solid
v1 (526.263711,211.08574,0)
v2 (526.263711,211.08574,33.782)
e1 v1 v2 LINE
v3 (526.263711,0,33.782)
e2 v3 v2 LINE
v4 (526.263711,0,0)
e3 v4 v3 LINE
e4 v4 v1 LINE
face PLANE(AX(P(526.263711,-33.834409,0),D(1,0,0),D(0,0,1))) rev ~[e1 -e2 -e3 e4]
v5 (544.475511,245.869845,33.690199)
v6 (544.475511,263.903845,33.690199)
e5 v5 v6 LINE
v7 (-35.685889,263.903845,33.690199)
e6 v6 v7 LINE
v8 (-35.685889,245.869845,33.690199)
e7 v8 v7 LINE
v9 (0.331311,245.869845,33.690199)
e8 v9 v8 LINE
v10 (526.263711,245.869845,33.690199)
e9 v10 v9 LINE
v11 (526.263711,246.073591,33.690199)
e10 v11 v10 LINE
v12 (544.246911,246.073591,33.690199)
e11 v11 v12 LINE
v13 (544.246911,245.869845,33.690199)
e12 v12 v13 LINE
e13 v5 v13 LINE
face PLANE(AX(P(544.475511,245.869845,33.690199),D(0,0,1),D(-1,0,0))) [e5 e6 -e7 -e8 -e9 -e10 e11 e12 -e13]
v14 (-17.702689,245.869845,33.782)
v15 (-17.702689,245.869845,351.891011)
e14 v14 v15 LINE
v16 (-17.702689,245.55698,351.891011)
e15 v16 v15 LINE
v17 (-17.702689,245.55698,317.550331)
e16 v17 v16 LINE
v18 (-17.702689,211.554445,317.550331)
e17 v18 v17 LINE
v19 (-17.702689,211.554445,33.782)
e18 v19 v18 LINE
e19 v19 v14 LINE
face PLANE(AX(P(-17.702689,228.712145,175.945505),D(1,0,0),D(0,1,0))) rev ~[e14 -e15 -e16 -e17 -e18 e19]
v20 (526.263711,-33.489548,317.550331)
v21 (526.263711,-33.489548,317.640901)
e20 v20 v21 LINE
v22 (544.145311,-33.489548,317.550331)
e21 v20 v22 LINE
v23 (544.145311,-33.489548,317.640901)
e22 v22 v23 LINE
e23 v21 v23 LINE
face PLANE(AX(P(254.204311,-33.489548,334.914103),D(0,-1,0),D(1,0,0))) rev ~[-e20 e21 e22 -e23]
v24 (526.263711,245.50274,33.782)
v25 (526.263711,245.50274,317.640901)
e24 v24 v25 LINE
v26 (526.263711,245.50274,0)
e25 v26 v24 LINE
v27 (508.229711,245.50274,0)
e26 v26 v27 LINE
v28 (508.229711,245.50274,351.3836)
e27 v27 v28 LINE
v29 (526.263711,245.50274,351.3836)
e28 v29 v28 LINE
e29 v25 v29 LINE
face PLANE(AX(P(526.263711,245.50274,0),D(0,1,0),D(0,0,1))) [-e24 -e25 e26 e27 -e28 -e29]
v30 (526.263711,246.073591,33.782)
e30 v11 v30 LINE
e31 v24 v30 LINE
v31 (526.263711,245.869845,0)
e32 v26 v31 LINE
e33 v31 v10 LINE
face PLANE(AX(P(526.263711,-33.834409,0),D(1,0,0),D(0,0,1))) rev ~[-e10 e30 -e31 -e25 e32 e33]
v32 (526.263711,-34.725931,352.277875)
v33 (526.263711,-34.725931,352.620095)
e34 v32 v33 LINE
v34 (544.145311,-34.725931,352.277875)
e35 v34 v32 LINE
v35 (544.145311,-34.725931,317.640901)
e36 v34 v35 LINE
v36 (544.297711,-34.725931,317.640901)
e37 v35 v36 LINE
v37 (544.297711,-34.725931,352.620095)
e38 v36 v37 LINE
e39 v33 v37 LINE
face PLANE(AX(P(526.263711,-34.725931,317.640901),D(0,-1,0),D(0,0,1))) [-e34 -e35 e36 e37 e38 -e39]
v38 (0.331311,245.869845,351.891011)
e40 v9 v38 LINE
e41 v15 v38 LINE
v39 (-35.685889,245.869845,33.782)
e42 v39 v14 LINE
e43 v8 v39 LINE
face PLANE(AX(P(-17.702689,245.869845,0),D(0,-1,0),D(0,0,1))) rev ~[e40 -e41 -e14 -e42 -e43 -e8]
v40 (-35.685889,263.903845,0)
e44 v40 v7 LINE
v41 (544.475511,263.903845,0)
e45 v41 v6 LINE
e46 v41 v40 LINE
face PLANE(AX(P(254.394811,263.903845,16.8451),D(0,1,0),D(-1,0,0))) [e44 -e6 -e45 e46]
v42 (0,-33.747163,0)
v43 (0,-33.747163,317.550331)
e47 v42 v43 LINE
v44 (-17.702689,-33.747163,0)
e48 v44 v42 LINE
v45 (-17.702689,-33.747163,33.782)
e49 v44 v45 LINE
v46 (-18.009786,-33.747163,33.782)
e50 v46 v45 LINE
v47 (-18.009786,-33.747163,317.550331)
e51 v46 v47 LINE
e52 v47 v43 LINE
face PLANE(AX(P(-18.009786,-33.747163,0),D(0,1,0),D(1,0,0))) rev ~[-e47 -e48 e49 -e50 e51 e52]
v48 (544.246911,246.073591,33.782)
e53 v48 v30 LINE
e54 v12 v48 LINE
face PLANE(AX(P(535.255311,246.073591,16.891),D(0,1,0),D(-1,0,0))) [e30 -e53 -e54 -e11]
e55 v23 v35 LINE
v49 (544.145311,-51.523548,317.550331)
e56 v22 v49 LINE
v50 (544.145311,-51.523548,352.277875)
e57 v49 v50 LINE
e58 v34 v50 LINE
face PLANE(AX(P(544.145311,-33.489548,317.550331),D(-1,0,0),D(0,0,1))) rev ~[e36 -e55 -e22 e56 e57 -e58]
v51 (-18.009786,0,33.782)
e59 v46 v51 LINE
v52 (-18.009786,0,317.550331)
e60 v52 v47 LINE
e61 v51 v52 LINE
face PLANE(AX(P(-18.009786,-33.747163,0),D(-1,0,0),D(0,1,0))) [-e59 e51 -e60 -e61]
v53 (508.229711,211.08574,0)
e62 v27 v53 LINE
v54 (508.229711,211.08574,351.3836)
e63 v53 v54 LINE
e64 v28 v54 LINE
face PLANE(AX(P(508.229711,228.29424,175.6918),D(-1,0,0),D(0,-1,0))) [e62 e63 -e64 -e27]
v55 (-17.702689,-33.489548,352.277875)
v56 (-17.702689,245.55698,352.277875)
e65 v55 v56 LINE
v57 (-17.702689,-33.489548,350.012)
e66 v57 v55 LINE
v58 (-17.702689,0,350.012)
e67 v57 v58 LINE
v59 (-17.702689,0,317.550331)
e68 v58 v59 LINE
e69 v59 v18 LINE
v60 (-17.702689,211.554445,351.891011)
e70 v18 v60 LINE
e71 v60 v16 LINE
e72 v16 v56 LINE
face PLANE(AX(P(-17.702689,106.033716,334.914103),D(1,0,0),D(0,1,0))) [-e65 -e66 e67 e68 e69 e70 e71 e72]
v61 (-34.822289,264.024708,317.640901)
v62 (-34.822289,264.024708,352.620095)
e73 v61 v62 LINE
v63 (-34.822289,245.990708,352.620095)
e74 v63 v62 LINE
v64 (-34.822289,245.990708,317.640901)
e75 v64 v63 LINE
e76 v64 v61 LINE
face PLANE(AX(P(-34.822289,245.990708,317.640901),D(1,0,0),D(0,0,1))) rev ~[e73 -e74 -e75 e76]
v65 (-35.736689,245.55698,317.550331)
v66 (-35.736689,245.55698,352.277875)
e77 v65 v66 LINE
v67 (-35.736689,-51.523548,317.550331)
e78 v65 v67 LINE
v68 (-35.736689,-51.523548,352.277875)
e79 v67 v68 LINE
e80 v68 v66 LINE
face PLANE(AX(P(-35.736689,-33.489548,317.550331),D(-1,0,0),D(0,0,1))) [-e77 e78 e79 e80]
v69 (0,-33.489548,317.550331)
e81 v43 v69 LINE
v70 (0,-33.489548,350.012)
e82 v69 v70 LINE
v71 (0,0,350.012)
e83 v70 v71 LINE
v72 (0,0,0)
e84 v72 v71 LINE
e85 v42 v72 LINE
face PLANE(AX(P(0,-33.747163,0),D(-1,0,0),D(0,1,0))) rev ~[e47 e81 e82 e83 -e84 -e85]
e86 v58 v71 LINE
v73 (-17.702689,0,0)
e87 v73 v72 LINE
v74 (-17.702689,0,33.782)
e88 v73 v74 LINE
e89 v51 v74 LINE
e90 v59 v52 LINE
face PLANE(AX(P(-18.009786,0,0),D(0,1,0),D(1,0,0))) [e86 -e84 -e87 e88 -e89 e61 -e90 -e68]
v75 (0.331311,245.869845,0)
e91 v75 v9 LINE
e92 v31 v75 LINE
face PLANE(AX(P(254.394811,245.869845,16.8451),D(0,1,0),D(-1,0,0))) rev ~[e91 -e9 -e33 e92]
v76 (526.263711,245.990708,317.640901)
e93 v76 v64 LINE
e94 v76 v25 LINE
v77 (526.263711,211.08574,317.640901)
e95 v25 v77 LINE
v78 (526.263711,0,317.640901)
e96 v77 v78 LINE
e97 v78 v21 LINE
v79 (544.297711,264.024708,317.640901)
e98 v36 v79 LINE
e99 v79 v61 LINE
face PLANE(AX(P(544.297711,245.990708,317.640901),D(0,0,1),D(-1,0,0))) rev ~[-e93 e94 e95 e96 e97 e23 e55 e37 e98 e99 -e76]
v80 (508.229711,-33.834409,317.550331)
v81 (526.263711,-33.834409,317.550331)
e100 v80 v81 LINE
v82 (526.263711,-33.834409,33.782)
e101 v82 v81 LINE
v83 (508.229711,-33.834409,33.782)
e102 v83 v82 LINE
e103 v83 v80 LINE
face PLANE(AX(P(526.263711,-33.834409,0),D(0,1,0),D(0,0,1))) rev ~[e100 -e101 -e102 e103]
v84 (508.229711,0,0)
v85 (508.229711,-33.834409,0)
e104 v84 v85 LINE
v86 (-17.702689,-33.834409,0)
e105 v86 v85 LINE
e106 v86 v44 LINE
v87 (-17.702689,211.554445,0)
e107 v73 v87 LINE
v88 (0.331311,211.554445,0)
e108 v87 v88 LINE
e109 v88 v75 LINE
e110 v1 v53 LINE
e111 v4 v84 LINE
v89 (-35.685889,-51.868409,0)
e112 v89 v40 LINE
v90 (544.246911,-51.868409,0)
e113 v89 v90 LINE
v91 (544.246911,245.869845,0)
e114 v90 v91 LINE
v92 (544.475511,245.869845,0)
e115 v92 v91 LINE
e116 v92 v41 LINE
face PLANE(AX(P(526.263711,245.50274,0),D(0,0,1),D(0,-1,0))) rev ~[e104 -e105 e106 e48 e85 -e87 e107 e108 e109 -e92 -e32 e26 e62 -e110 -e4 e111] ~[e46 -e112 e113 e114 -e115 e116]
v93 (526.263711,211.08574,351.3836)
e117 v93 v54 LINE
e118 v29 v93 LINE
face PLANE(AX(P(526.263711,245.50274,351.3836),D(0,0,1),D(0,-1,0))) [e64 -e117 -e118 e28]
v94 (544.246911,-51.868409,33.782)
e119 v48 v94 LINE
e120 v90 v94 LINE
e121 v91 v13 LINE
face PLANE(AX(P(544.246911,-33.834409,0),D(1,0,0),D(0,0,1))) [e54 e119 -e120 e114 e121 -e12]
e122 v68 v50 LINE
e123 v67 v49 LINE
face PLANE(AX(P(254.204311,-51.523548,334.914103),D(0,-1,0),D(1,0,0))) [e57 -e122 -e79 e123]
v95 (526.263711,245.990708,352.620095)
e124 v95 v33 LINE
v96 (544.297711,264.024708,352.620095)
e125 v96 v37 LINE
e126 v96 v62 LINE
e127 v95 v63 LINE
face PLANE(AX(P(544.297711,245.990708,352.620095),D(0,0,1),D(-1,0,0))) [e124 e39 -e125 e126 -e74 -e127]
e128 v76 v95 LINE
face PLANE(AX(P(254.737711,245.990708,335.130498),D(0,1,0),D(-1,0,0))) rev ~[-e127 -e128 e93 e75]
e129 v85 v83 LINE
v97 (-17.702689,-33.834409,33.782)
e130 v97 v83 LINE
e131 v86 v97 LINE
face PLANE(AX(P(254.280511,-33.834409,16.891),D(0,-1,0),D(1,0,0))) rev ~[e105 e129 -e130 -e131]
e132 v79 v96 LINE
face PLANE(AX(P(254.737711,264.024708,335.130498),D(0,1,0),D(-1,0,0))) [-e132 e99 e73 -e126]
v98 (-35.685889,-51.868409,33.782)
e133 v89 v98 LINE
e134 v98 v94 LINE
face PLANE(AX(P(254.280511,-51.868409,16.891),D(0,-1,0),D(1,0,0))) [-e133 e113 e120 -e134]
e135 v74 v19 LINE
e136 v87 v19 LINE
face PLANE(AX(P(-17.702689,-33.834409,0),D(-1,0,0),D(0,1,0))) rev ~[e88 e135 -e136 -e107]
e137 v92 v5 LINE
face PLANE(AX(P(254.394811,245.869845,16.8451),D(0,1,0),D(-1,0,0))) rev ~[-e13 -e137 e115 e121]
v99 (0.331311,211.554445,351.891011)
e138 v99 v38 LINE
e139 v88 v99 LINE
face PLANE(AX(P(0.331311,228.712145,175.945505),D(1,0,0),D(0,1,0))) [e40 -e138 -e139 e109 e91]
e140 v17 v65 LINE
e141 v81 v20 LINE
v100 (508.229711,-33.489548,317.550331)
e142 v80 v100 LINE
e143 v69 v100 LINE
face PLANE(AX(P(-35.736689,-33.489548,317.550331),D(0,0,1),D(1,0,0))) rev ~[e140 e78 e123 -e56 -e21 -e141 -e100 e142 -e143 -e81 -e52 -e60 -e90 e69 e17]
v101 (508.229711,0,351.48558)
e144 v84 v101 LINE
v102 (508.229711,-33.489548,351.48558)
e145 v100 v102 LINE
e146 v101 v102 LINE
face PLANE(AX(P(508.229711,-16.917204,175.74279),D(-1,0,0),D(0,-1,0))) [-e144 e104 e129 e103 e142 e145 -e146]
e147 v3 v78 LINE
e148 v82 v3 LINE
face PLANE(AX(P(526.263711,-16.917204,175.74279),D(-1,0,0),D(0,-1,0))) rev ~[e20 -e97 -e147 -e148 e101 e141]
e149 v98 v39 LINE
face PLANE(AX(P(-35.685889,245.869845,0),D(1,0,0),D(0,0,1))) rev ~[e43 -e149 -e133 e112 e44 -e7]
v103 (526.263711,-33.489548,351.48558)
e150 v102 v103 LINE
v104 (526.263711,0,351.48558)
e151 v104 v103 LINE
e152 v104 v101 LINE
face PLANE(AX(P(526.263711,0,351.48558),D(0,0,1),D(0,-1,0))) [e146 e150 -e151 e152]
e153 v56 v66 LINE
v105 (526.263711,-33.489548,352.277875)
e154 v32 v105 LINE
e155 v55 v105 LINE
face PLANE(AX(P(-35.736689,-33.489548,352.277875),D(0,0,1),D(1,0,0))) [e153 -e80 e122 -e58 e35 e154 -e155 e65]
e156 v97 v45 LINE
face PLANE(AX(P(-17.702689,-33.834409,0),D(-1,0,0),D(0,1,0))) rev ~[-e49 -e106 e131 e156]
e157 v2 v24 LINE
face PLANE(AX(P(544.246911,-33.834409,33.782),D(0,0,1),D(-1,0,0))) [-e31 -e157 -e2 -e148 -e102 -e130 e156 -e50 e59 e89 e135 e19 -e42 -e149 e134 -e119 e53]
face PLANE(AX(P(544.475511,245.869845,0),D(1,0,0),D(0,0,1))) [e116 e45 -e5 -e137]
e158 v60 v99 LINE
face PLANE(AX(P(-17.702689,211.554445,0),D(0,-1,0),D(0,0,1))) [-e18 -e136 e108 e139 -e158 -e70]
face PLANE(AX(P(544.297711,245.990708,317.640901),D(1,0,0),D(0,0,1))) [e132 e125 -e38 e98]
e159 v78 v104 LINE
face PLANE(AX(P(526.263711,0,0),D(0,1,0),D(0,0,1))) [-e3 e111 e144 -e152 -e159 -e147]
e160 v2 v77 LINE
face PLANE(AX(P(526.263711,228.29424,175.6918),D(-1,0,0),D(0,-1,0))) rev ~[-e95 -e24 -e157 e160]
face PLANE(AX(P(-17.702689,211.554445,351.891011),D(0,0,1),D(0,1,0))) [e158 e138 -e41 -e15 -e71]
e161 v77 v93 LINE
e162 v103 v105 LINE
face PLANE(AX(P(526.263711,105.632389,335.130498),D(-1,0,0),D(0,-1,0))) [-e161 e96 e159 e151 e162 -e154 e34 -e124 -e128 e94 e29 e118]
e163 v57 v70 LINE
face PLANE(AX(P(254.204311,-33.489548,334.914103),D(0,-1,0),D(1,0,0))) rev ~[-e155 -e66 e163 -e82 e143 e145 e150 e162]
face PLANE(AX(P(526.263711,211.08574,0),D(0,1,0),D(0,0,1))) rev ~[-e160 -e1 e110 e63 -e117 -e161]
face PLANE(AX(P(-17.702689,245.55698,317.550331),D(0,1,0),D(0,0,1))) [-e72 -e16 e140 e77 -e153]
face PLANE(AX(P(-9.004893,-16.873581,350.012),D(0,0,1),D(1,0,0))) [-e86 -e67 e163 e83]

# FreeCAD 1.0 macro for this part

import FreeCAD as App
import Part
import Sketcher
from FreeCAD import Vector
Q = App.Units.Quantity


def add_polygon(sketch, points):
    """Adds a closed chain of lines whose ends are joined by coincident constraints."""
    first, n = sketch.GeometryCount, len(points)
    for a, b in zip(points, points[1:] + points[:1]):
        sketch.addGeometry(Part.LineSegment(App.Vector(*a, 0), App.Vector(*b, 0)), False)
    for i in range(n):
        sketch.addConstraint(Sketcher.Constraint("Coincident", first + i, 2, first + (i + 1) % n, 1))

doc = App.newDocument("Part")
body = doc.addObject("PartDesign::Body", "Body")

# Sketch on XY plane
sketch1 = body.newObject("Sketcher::SketchObject", "Sketch")
sketch1.AttachmentSupport = (doc.getObject("XY_Plane"), [""])
sketch1.MapMode = "FlatFace"
add_polygon(sketch1, [(-18, 0), (-18, -34), (0, -34), (0, 0)])  # lines 0-3
sketch1.addConstraint([
    Sketcher.Constraint("Vertical", 0),
    Sketcher.Constraint("Horizontal", 1),
    Sketcher.Constraint("Vertical", 2),
    Sketcher.Constraint("Horizontal", 3),
    Sketcher.Constraint("Coincident", 2, 2, -1, 1),
    Sketcher.Constraint("DistanceX", 1, 1, 1, 2, Q("18.009786 mm")),
    Sketcher.Constraint("DistanceY", 0, 2, 0, 1, Q("33.747163 mm")),
])
pad1 = body.newObject("PartDesign::Pad", "Pad")
pad1.Profile = sketch1
pad1.Length = Q("13.78 in")

# Sketch on XY plane
sketch2 = body.newObject("Sketcher::SketchObject", "Sketch001")
sketch2.AttachmentSupport = (doc.getObject("XY_Plane"), [""])
sketch2.MapMode = "FlatFace"
add_polygon(sketch2, [(-36, 246), (-36, -34), (-18, -34), (-18, 246)])  # lines 0-3
sketch2.addConstraint([
    Sketcher.Constraint("Vertical", 0),
    Sketcher.Constraint("Horizontal", 1),
    Sketcher.Constraint("Vertical", 2),
    Sketcher.Constraint("Horizontal", 3),
    Sketcher.Constraint("DistanceX", 1, 1, 1, 2, Q("0.708 in")),
    Sketcher.Constraint("DistanceY", 0, 2, 0, 1, Q("279.704254 mm")),
    Sketcher.Constraint("DistanceX", 0, 2, -1, 1, Q("35.685889 mm")),
    Sketcher.Constraint("DistanceY", 0, 2, -1, 1, Q("33.834409 mm")),
])
pad2 = body.newObject("PartDesign::Pad", "Pad001")
pad2.Profile = sketch2
pad2.Length = Q("1.33 in")

# Sketch on XZ plane
sketch3 = body.newObject("Sketcher::SketchObject", "Sketch002")
sketch3.AttachmentSupport = (doc.getObject("XZ_Plane"), [""])
sketch3.MapMode = "FlatFace"
sketch3.AttachmentOffset = App.Placement(Vector(0, 0, 33.834409), App.Rotation())
add_polygon(sketch3, [(-36, 34), (-36, 0), (544, 0), (544, 34)])  # lines 0-3
sketch3.addConstraint([
    Sketcher.Constraint("Vertical", 0),
    Sketcher.Constraint("Horizontal", 1),
    Sketcher.Constraint("Vertical", 2),
    Sketcher.Constraint("Horizontal", 3),
    Sketcher.Constraint("PointOnObject", 0, 2, -1),
    Sketcher.Constraint("DistanceY", 0, 2, 0, 1, Q("1.33 in")),
    Sketcher.Constraint("DistanceX", 1, 1, 1, 2, Q("22.832 in")),
    Sketcher.Constraint("DistanceX", 0, 2, -1, 1, Q("35.685889 mm")),
])
pad3 = body.newObject("PartDesign::Pad", "Pad002")
pad3.Profile = sketch3
pad3.Length = Q("0.71 in")

# Sketch on XZ plane
sketch4 = body.newObject("Sketcher::SketchObject", "Sketch003")
sketch4.AttachmentSupport = (doc.getObject("XZ_Plane"), [""])
sketch4.MapMode = "FlatFace"
sketch4.AttachmentOffset = App.Placement(Vector(0, 0, 33.834409), App.Rotation())
add_polygon(sketch4, [(544, 34), (544, 0), (526, 0), (526, 34)])  # lines 0-3
sketch4.addConstraint([
    Sketcher.Constraint("Vertical", 0),
    Sketcher.Constraint("Horizontal", 1),
    Sketcher.Constraint("Vertical", 2),
    Sketcher.Constraint("Horizontal", 3),
    Sketcher.Constraint("PointOnObject", 0, 2, -1),
    Sketcher.Constraint("DistanceY", 0, 2, 0, 1, Q("1.33 in")),
    Sketcher.Constraint("DistanceX", 1, 2, 1, 1, Q("0.708 in")),
    Sketcher.Constraint("DistanceX", -1, 1, 0, 2, Q("544.246911 mm")),
])
pad4 = body.newObject("PartDesign::Pad", "Pad003")
pad4.Profile = sketch4
pad4.Length = Q("11.02 in")
pad4.Reversed = True

# Sketch on XZ plane
sketch5 = body.newObject("Sketcher::SketchObject", "Sketch004")
sketch5.AttachmentSupport = (doc.getObject("XZ_Plane"), [""])
sketch5.MapMode = "FlatFace"
sketch5.AttachmentOffset = App.Placement(Vector(0, 0, -245.869845), App.Rotation())
add_polygon(sketch5, [(544, 34), (544, 0), (-36, 0), (-36, 34)])  # lines 0-3
sketch5.addConstraint([
    Sketcher.Constraint("Vertical", 0),
    Sketcher.Constraint("Horizontal", 1),
    Sketcher.Constraint("Vertical", 2),
    Sketcher.Constraint("Horizontal", 3),
    Sketcher.Constraint("PointOnObject", 0, 2, -1),
    Sketcher.Constraint("DistanceX", 1, 2, 1, 1, Q("22.841 in")),
    Sketcher.Constraint("DistanceY", 0, 2, 0, 1, Q("33.690199 mm")),
    Sketcher.Constraint("DistanceX", -1, 1, 0, 2, Q("544.475511 mm")),
])
pad5 = body.newObject("PartDesign::Pad", "Pad004")
pad5.Profile = sketch5
pad5.Length = Q("0.71 in")
pad5.Reversed = True

# Sketch on YZ plane
sketch6 = body.newObject("Sketcher::SketchObject", "Sketch005")
sketch6.AttachmentSupport = (doc.getObject("YZ_Plane"), [""])
sketch6.MapMode = "FlatFace"
sketch6.AttachmentOffset = App.Placement(Vector(0, 0, -17.702689), App.Rotation())
add_polygon(sketch6, [(212, 352), (212, 0), (246, 0), (246, 352)])  # lines 0-3
sketch6.addConstraint([
    Sketcher.Constraint("Vertical", 0),
    Sketcher.Constraint("Horizontal", 1),
    Sketcher.Constraint("Vertical", 2),
    Sketcher.Constraint("Horizontal", 3),
    Sketcher.Constraint("PointOnObject", 0, 2, -1),
    Sketcher.Constraint("DistanceX", 1, 1, 1, 2, Q("1.351 in")),
    Sketcher.Constraint("DistanceY", 0, 2, 0, 1, Q("351.891011 mm")),
    Sketcher.Constraint("DistanceX", -1, 1, 0, 2, Q("211.554445 mm")),
])
pad6 = body.newObject("PartDesign::Pad", "Pad005")
pad6.Profile = sketch6
pad6.Length = Q("0.71 in")

# Sketch on YZ plane
sketch7 = body.newObject("Sketcher::SketchObject", "Sketch006")
sketch7.AttachmentSupport = (doc.getObject("YZ_Plane"), [""])
sketch7.MapMode = "FlatFace"
sketch7.AttachmentOffset = App.Placement(Vector(0, 0, 526.263711), App.Rotation())
add_polygon(sketch7, [(0, 351), (0, 0), (-34, 0), (-34, 351)])  # lines 0-3
sketch7.addConstraint([
    Sketcher.Constraint("Vertical", 0),
    Sketcher.Constraint("Horizontal", 1),
    Sketcher.Constraint("Vertical", 2),
    Sketcher.Constraint("Horizontal", 3),
    Sketcher.Constraint("Coincident", 0, 2, -1, 1),
    Sketcher.Constraint("DistanceX", 1, 2, 1, 1, Q("33.834409 mm")),
    Sketcher.Constraint("DistanceY", 0, 2, 0, 1, Q("351.48558 mm")),
])
pad7 = body.newObject("PartDesign::Pad", "Pad006")
pad7.Profile = sketch7
pad7.Length = Q("0.71 in")
pad7.Reversed = True

# Sketch on YZ plane
sketch8 = body.newObject("Sketcher::SketchObject", "Sketch007")
sketch8.AttachmentSupport = (doc.getObject("YZ_Plane"), [""])
sketch8.MapMode = "FlatFace"
sketch8.AttachmentOffset = App.Placement(Vector(0, 0, 526.263711), App.Rotation())
add_polygon(sketch8, [(246, 351), (246, 0), (211, 0), (211, 351)])  # lines 0-3
sketch8.addConstraint([
    Sketcher.Constraint("Vertical", 0),
    Sketcher.Constraint("Horizontal", 1),
    Sketcher.Constraint("Vertical", 2),
    Sketcher.Constraint("Horizontal", 3),
    Sketcher.Constraint("PointOnObject", 0, 2, -1),
    Sketcher.Constraint("DistanceX", 1, 2, 1, 1, Q("1.355 in")),
    Sketcher.Constraint("DistanceY", 0, 2, 0, 1, Q("13.834 in")),
    Sketcher.Constraint("DistanceX", -1, 1, 0, 2, Q("245.50274 mm")),
])
pad8 = body.newObject("PartDesign::Pad", "Pad007")
pad8.Profile = sketch8
pad8.Length = Q("0.71 in")
pad8.Reversed = True

# Sketch on YZ plane
sketch9 = body.newObject("Sketcher::SketchObject", "Sketch008")
sketch9.AttachmentSupport = (doc.getObject("YZ_Plane"), [""])
sketch9.MapMode = "FlatFace"
sketch9.AttachmentOffset = App.Placement(Vector(0, 0, 526.263711), App.Rotation())
add_polygon(sketch9, [(246, 353), (246, 318), (-35, 318), (-35, 353)])  # lines 0-3
sketch9.addConstraint([
    Sketcher.Constraint("Vertical", 0),
    Sketcher.Constraint("Horizontal", 1),
    Sketcher.Constraint("Vertical", 2),
    Sketcher.Constraint("Horizontal", 3),
    Sketcher.Constraint("DistanceX", 1, 2, 1, 1, Q("280.716639 mm")),
    Sketcher.Constraint("DistanceY", -1, 1, 0, 2, Q("317.640901 mm")),
    Sketcher.Constraint("DistanceY", 0, 2, 0, 1, Q("34.979194 mm")),
    Sketcher.Constraint("DistanceX", -1, 1, 0, 2, Q("245.990708 mm")),
])
pad9 = body.newObject("PartDesign::Pad", "Pad008")
pad9.Profile = sketch9
pad9.Length = Q("0.71 in")

# Sketch on YZ plane
sketch10 = body.newObject("Sketcher::SketchObject", "Sketch009")
sketch10.AttachmentSupport = (doc.getObject("YZ_Plane"), [""])
sketch10.MapMode = "FlatFace"
sketch10.AttachmentOffset = App.Placement(Vector(0, 0, -17.702689), App.Rotation())
add_polygon(sketch10, [(-33, 352), (-33, 318), (246, 318), (246, 352)])  # lines 0-3
sketch10.addConstraint([
    Sketcher.Constraint("Vertical", 0),
    Sketcher.Constraint("Horizontal", 1),
    Sketcher.Constraint("Vertical", 2),
    Sketcher.Constraint("Horizontal", 3),
    Sketcher.Constraint("DistanceX", 1, 1, 1, 2, Q("279.046528 mm")),
    Sketcher.Constraint("DistanceY", 0, 2, 0, 1, Q("34.727544 mm")),
    Sketcher.Constraint("DistanceY", -1, 1, 0, 2, Q("317.550331 mm")),
    Sketcher.Constraint("DistanceX", -1, 1, 1, 2, Q("245.55698 mm")),
])
pad10 = body.newObject("PartDesign::Pad", "Pad009")
pad10.Profile = sketch10
pad10.Length = Q("0.71 in")
pad10.Reversed = True

# Sketch on XZ plane
sketch11 = body.newObject("Sketcher::SketchObject", "Sketch010")
sketch11.AttachmentSupport = (doc.getObject("XZ_Plane"), [""])
sketch11.MapMode = "FlatFace"
sketch11.AttachmentOffset = App.Placement(Vector(0, 0, -245.990708), App.Rotation())
add_polygon(sketch11, [(544, 353), (544, 318), (-35, 318), (-35, 353)])  # lines 0-3
sketch11.addConstraint([
    Sketcher.Constraint("Vertical", 0),
    Sketcher.Constraint("Horizontal", 1),
    Sketcher.Constraint("Vertical", 2),
    Sketcher.Constraint("Horizontal", 3),
    Sketcher.Constraint("DistanceX", 1, 2, 1, 1, Q("22.8 in")),
    Sketcher.Constraint("DistanceY", -1, 1, 0, 2, Q("317.640901 mm")),
    Sketcher.Constraint("DistanceY", 0, 2, 0, 1, Q("34.979194 mm")),
    Sketcher.Constraint("DistanceX", -1, 1, 0, 2, Q("544.297711 mm")),
])
pad11 = body.newObject("PartDesign::Pad", "Pad010")
pad11.Profile = sketch11
pad11.Length = Q("0.71 in")
pad11.Reversed = True

# Sketch on XZ plane
sketch12 = body.newObject("Sketcher::SketchObject", "Sketch011")
sketch12.AttachmentSupport = (doc.getObject("XZ_Plane"), [""])
sketch12.MapMode = "FlatFace"
sketch12.AttachmentOffset = App.Placement(Vector(0, 0, 33.489548), App.Rotation())
add_polygon(sketch12, [(-36, 352), (-36, 318), (544, 318), (544, 352)])  # lines 0-3
sketch12.addConstraint([
    Sketcher.Constraint("Vertical", 0),
    Sketcher.Constraint("Horizontal", 1),
    Sketcher.Constraint("Vertical", 2),
    Sketcher.Constraint("Horizontal", 3),
    Sketcher.Constraint("DistanceX", 1, 1, 1, 2, Q("22.83 in")),
    Sketcher.Constraint("DistanceY", 0, 2, 0, 1, Q("34.727544 mm")),
    Sketcher.Constraint("DistanceX", 0, 2, -1, 1, Q("35.736689 mm")),
    Sketcher.Constraint("DistanceY", -1, 1, 0, 2, Q("317.550331 mm")),
])
pad12 = body.newObject("PartDesign::Pad", "Pad011")
pad12.Profile = sketch12
pad12.Length = Q("0.71 in")

doc.recompute()
